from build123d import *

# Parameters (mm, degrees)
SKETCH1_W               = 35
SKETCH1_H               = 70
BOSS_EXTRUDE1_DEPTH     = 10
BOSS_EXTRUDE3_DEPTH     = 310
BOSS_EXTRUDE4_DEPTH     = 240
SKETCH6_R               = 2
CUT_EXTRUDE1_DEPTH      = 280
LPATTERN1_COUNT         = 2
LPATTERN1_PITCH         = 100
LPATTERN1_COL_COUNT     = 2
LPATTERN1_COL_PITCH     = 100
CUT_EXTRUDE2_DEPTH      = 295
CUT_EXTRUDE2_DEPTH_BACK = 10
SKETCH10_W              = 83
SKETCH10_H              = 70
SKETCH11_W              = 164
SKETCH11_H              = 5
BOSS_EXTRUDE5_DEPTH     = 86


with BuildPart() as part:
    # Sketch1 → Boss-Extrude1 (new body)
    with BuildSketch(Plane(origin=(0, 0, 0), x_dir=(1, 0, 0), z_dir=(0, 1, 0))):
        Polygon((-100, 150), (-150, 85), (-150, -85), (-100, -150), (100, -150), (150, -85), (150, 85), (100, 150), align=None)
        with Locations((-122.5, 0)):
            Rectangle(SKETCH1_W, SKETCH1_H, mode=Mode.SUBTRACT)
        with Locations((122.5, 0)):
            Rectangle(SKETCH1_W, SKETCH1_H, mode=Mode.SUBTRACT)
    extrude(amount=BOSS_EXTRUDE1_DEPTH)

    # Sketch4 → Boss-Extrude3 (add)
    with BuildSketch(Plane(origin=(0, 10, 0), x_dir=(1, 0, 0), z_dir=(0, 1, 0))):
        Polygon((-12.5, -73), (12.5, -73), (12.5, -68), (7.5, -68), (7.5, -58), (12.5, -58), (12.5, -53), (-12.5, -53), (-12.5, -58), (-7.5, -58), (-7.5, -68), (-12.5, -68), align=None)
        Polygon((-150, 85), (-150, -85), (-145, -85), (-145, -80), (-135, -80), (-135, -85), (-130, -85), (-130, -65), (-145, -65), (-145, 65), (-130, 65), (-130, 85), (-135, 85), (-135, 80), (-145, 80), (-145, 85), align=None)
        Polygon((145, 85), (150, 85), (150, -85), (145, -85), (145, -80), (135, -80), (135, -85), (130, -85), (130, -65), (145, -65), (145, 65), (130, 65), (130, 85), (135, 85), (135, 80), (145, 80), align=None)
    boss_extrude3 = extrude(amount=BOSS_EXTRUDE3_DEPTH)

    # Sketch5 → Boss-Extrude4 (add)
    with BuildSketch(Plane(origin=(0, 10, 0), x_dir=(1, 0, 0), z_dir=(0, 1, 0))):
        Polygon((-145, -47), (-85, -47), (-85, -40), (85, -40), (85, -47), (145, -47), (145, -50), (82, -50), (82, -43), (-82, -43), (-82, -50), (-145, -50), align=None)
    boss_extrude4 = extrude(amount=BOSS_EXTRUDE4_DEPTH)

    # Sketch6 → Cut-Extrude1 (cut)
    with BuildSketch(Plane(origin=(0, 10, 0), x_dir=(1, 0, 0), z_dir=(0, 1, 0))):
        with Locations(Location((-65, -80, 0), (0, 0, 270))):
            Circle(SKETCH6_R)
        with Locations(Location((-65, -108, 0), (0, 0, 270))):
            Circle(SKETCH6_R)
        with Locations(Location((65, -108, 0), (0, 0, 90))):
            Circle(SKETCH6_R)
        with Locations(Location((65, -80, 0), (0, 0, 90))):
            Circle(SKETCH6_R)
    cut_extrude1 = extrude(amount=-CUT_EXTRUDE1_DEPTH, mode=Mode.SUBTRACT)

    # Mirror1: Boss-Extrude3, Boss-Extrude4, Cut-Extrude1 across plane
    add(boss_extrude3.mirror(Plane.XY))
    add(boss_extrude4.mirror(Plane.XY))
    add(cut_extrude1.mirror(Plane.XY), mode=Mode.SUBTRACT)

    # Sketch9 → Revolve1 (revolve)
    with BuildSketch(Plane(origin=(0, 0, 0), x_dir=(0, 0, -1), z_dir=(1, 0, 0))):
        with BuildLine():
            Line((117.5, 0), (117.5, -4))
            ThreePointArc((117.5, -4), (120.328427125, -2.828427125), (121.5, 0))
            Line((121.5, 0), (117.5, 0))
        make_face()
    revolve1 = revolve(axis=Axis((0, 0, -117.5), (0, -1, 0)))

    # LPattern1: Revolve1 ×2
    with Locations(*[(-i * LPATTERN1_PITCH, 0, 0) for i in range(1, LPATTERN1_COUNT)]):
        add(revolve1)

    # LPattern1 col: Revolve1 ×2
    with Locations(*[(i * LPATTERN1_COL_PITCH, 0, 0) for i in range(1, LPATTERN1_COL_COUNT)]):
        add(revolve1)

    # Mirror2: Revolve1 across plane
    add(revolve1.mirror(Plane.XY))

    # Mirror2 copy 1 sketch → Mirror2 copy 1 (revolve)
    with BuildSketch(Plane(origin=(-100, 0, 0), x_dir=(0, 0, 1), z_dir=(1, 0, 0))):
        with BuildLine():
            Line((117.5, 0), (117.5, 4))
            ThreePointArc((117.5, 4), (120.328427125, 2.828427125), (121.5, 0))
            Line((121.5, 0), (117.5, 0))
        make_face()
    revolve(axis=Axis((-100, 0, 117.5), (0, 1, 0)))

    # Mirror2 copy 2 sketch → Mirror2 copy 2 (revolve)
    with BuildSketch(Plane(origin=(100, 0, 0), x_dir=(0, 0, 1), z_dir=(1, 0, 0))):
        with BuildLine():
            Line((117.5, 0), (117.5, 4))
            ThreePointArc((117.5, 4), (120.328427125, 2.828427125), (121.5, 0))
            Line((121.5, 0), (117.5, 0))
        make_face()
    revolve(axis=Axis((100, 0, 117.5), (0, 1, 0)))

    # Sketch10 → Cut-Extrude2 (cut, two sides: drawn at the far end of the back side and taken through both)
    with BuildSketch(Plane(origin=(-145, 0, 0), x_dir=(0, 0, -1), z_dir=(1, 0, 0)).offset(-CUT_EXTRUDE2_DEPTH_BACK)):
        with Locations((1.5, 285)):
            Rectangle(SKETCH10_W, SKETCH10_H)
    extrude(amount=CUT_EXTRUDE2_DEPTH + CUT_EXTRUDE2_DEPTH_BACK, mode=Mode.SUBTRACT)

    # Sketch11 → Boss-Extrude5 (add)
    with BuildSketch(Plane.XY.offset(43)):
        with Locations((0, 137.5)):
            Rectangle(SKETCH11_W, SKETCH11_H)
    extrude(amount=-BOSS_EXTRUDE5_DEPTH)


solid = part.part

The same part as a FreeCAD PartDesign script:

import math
import FreeCAD as App
import Part
import Sketcher

V = App.Vector

doc = App.newDocument("Part")
body = doc.addObject("PartDesign::Body", "Body")

sketch1 = body.newObject("Sketcher::SketchObject", "Sketch")
sketch1.AttachmentSupport = (doc.getObject("XZ_Plane"), [""])
sketch1.MapMode = "FlatFace"
sketch1.addGeometry(Part.LineSegment(V(-100, -150, 0), V(-150, -85, 0)), False)
sketch1.addGeometry(Part.LineSegment(V(-150, -85, 0), V(-150, 85, 0)), False)
sketch1.addGeometry(Part.LineSegment(V(-150, 85, 0), V(-100, 150, 0)), False)
sketch1.addGeometry(Part.LineSegment(V(-100, 150, 0), V(100, 150, 0)), False)
sketch1.addGeometry(Part.LineSegment(V(100, 150, 0), V(150, 85, 0)), False)
sketch1.addGeometry(Part.LineSegment(V(150, 85, 0), V(150, -85, 0)), False)
sketch1.addGeometry(Part.LineSegment(V(150, -85, 0), V(100, -150, 0)), False)
sketch1.addGeometry(Part.LineSegment(V(100, -150, 0), V(-100, -150, 0)), False)
sketch1.addGeometry(Part.LineSegment(V(-105, 35, 0), V(-140, 35, 0)), False)
sketch1.addGeometry(Part.LineSegment(V(-140, 35, 0), V(-140, -35, 0)), False)
sketch1.addGeometry(Part.LineSegment(V(-140, -35, 0), V(-105, -35, 0)), False)
sketch1.addGeometry(Part.LineSegment(V(-105, -35, 0), V(-105, 35, 0)), False)
sketch1.addGeometry(Part.LineSegment(V(140, 35, 0), V(105, 35, 0)), False)
sketch1.addGeometry(Part.LineSegment(V(105, 35, 0), V(105, -35, 0)), False)
sketch1.addGeometry(Part.LineSegment(V(105, -35, 0), V(140, -35, 0)), False)
sketch1.addGeometry(Part.LineSegment(V(140, -35, 0), V(140, 35, 0)), False)
sketch1.addConstraint(Sketcher.Constraint("Coincident", 0, 2, 1, 1))
sketch1.addConstraint(Sketcher.Constraint("Coincident", 1, 2, 2, 1))
sketch1.addConstraint(Sketcher.Constraint("Coincident", 2, 2, 3, 1))
sketch1.addConstraint(Sketcher.Constraint("Coincident", 3, 2, 4, 1))
sketch1.addConstraint(Sketcher.Constraint("Coincident", 4, 2, 5, 1))
sketch1.addConstraint(Sketcher.Constraint("Coincident", 5, 2, 6, 1))
sketch1.addConstraint(Sketcher.Constraint("Coincident", 6, 2, 7, 1))
sketch1.addConstraint(Sketcher.Constraint("Coincident", 7, 2, 0, 1))
sketch1.addConstraint(Sketcher.Constraint("Coincident", 8, 2, 9, 1))
sketch1.addConstraint(Sketcher.Constraint("Coincident", 9, 2, 10, 1))
sketch1.addConstraint(Sketcher.Constraint("Coincident", 10, 2, 11, 1))
sketch1.addConstraint(Sketcher.Constraint("Coincident", 11, 2, 8, 1))
sketch1.addConstraint(Sketcher.Constraint("Coincident", 12, 2, 13, 1))
sketch1.addConstraint(Sketcher.Constraint("Coincident", 13, 2, 14, 1))
sketch1.addConstraint(Sketcher.Constraint("Coincident", 14, 2, 15, 1))
sketch1.addConstraint(Sketcher.Constraint("Coincident", 15, 2, 12, 1))
sketch1.addConstraint(Sketcher.Constraint("Vertical", 1))
sketch1.addConstraint(Sketcher.Constraint("Horizontal", 3))
sketch1.addConstraint(Sketcher.Constraint("Vertical", 5))
sketch1.addConstraint(Sketcher.Constraint("Horizontal", 7))
sketch1.addConstraint(Sketcher.Constraint("Horizontal", 8))
sketch1.addConstraint(Sketcher.Constraint("Vertical", 9))
sketch1.addConstraint(Sketcher.Constraint("Horizontal", 10))
sketch1.addConstraint(Sketcher.Constraint("Vertical", 11))
sketch1.addConstraint(Sketcher.Constraint("Horizontal", 12))
sketch1.addConstraint(Sketcher.Constraint("Vertical", 13))
sketch1.addConstraint(Sketcher.Constraint("Horizontal", 14))
sketch1.addConstraint(Sketcher.Constraint("Vertical", 15))
sketch1.addConstraint(Sketcher.Constraint("Symmetric", 0, 2, 4, 2, -1, 1))
sketch1.addConstraint(Sketcher.Constraint("Symmetric", 2, 2, 6, 2, -1, 1))
sketch1.addConstraint(Sketcher.Constraint("Symmetric", 10, 2, 12, 2, -1, 1))
sketch1.addConstraint(Sketcher.Constraint("Symmetric", 8, 2, 14, 2, -1, 1))
sketch1.addConstraint(Sketcher.Constraint("Parallel", 0, 4))
sketch1.addConstraint(Sketcher.Constraint("Parallel", 2, 6))
sketch1.addConstraint(Sketcher.Constraint("Horizontal", 1, 2, 4, 2))
sketch1.addConstraint(Sketcher.Constraint("Horizontal", 11, 2, 12, 2))
sketch1.addConstraint(Sketcher.Constraint("Vertical", 3, 2, 6, 2))
sketch1.addConstraint(Sketcher.Constraint("DistanceX", 3, 1, 3, 2, 200.0))
sketch1.addConstraint(Sketcher.Constraint("DistanceX", 8, 2, 8, 1, 35.0))
sketch1.addConstraint(Sketcher.Constraint("DistanceY", 1, 1, 1, 2, 170.0))
sketch1.addConstraint(Sketcher.Constraint("DistanceY", 9, 2, 9, 1, 70.0))
sketch1.addConstraint(Sketcher.Constraint("DistanceX", 0, 2, -1, 1, 150.0))
sketch1.addConstraint(Sketcher.Constraint("DistanceY", -1, 1, 2, 2, 150.0))
sketch1.addConstraint(Sketcher.Constraint("DistanceX", 8, 2, -1, 1, 140.0))
pad1 = body.newObject("PartDesign::Pad", "Pad")
pad1.Profile = sketch1
pad1.Length = 10
pad1.Reversed = True

sketch2 = body.newObject("Sketcher::SketchObject", "Sketch001")
sketch2.AttachmentSupport = (doc.getObject("XZ_Plane"), [""])
sketch2.MapMode = "FlatFace"
sketch2.AttachmentOffset = App.Placement(V(0, 0, -10), App.Rotation())
sketch2.addGeometry(Part.LineSegment(V(-12, 73, 0), V(12, 73, 0)), False)
sketch2.addGeometry(Part.LineSegment(V(12, 73, 0), V(12, 68, 0)), False)
sketch2.addGeometry(Part.LineSegment(V(12, 68, 0), V(8, 68, 0)), False)
sketch2.addGeometry(Part.LineSegment(V(8, 68, 0), V(8, 58, 0)), False)
sketch2.addGeometry(Part.LineSegment(V(8, 58, 0), V(12, 58, 0)), False)
sketch2.addGeometry(Part.LineSegment(V(12, 58, 0), V(12, 53, 0)), False)
sketch2.addGeometry(Part.LineSegment(V(12, 53, 0), V(-12, 53, 0)), False)
sketch2.addGeometry(Part.LineSegment(V(-12, 53, 0), V(-12, 58, 0)), False)
sketch2.addGeometry(Part.LineSegment(V(-12, 58, 0), V(-8, 58, 0)), False)
sketch2.addGeometry(Part.LineSegment(V(-8, 58, 0), V(-8, 68, 0)), False)
sketch2.addGeometry(Part.LineSegment(V(-8, 68, 0), V(-12, 68, 0)), False)
sketch2.addGeometry(Part.LineSegment(V(-12, 68, 0), V(-12, 73, 0)), False)
sketch2.addGeometry(Part.LineSegment(V(-150, -85, 0), V(-150, 85, 0)), False)
sketch2.addGeometry(Part.LineSegment(V(-150, 85, 0), V(-145, 85, 0)), False)
sketch2.addGeometry(Part.LineSegment(V(-145, 85, 0), V(-145, 80, 0)), False)
sketch2.addGeometry(Part.LineSegment(V(-145, 80, 0), V(-135, 80, 0)), False)
sketch2.addGeometry(Part.LineSegment(V(-135, 80, 0), V(-135, 85, 0)), False)
sketch2.addGeometry(Part.LineSegment(V(-135, 85, 0), V(-130, 85, 0)), False)
sketch2.addGeometry(Part.LineSegment(V(-130, 85, 0), V(-130, 65, 0)), False)
sketch2.addGeometry(Part.LineSegment(V(-130, 65, 0), V(-145, 65, 0)), False)
sketch2.addGeometry(Part.LineSegment(V(-145, 65, 0), V(-145, -65, 0)), False)
sketch2.addGeometry(Part.LineSegment(V(-145, -65, 0), V(-130, -65, 0)), False)
sketch2.addGeometry(Part.LineSegment(V(-130, -65, 0), V(-130, -85, 0)), False)
sketch2.addGeometry(Part.LineSegment(V(-130, -85, 0), V(-135, -85, 0)), False)
sketch2.addGeometry(Part.LineSegment(V(-135, -85, 0), V(-135, -80, 0)), False)
sketch2.addGeometry(Part.LineSegment(V(-135, -80, 0), V(-145, -80, 0)), False)
sketch2.addGeometry(Part.LineSegment(V(-145, -80, 0), V(-145, -85, 0)), False)
sketch2.addGeometry(Part.LineSegment(V(-145, -85, 0), V(-150, -85, 0)), False)
sketch2.addGeometry(Part.LineSegment(V(150, -85, 0), V(145, -85, 0)), False)
sketch2.addGeometry(Part.LineSegment(V(145, -85, 0), V(145, -80, 0)), False)
sketch2.addGeometry(Part.LineSegment(V(145, -80, 0), V(135, -80, 0)), False)
sketch2.addGeometry(Part.LineSegment(V(135, -80, 0), V(135, -85, 0)), False)
sketch2.addGeometry(Part.LineSegment(V(135, -85, 0), V(130, -85, 0)), False)
sketch2.addGeometry(Part.LineSegment(V(130, -85, 0), V(130, -65, 0)), False)
sketch2.addGeometry(Part.LineSegment(V(130, -65, 0), V(145, -65, 0)), False)
sketch2.addGeometry(Part.LineSegment(V(145, -65, 0), V(145, 65, 0)), False)
sketch2.addGeometry(Part.LineSegment(V(145, 65, 0), V(130, 65, 0)), False)
sketch2.addGeometry(Part.LineSegment(V(130, 65, 0), V(130, 85, 0)), False)
sketch2.addGeometry(Part.LineSegment(V(130, 85, 0), V(135, 85, 0)), False)
sketch2.addGeometry(Part.LineSegment(V(135, 85, 0), V(135, 80, 0)), False)
sketch2.addGeometry(Part.LineSegment(V(135, 80, 0), V(145, 80, 0)), False)
sketch2.addGeometry(Part.LineSegment(V(145, 80, 0), V(145, 85, 0)), False)
sketch2.addGeometry(Part.LineSegment(V(145, 85, 0), V(150, 85, 0)), False)
sketch2.addGeometry(Part.LineSegment(V(150, 85, 0), V(150, -85, 0)), False)
sketch2.addConstraint(Sketcher.Constraint("Coincident", 0, 2, 1, 1))
sketch2.addConstraint(Sketcher.Constraint("Coincident", 1, 2, 2, 1))
sketch2.addConstraint(Sketcher.Constraint("Coincident", 2, 2, 3, 1))
sketch2.addConstraint(Sketcher.Constraint("Coincident", 3, 2, 4, 1))
sketch2.addConstraint(Sketcher.Constraint("Coincident", 4, 2, 5, 1))
sketch2.addConstraint(Sketcher.Constraint("Coincident", 5, 2, 6, 1))
sketch2.addConstraint(Sketcher.Constraint("Coincident", 6, 2, 7, 1))
sketch2.addConstraint(Sketcher.Constraint("Coincident", 7, 2, 8, 1))
sketch2.addConstraint(Sketcher.Constraint("Coincident", 8, 2, 9, 1))
sketch2.addConstraint(Sketcher.Constraint("Coincident", 9, 2, 10, 1))
sketch2.addConstraint(Sketcher.Constraint("Coincident", 10, 2, 11, 1))
sketch2.addConstraint(Sketcher.Constraint("Coincident", 11, 2, 0, 1))
sketch2.addConstraint(Sketcher.Constraint("Coincident", 12, 2, 13, 1))
sketch2.addConstraint(Sketcher.Constraint("Coincident", 13, 2, 14, 1))
sketch2.addConstraint(Sketcher.Constraint("Coincident", 14, 2, 15, 1))
sketch2.addConstraint(Sketcher.Constraint("Coincident", 15, 2, 16, 1))
sketch2.addConstraint(Sketcher.Constraint("Coincident", 16, 2, 17, 1))
sketch2.addConstraint(Sketcher.Constraint("Coincident", 17, 2, 18, 1))
sketch2.addConstraint(Sketcher.Constraint("Coincident", 18, 2, 19, 1))
sketch2.addConstraint(Sketcher.Constraint("Coincident", 19, 2, 20, 1))
sketch2.addConstraint(Sketcher.Constraint("Coincident", 20, 2, 21, 1))
sketch2.addConstraint(Sketcher.Constraint("Coincident", 21, 2, 22, 1))
sketch2.addConstraint(Sketcher.Constraint("Coincident", 22, 2, 23, 1))
sketch2.addConstraint(Sketcher.Constraint("Coincident", 23, 2, 24, 1))
sketch2.addConstraint(Sketcher.Constraint("Coincident", 24, 2, 25, 1))
sketch2.addConstraint(Sketcher.Constraint("Coincident", 25, 2, 26, 1))
sketch2.addConstraint(Sketcher.Constraint("Coincident", 26, 2, 27, 1))
sketch2.addConstraint(Sketcher.Constraint("Coincident", 27, 2, 12, 1))
sketch2.addConstraint(Sketcher.Constraint("Coincident", 28, 2, 29, 1))
sketch2.addConstraint(Sketcher.Constraint("Coincident", 29, 2, 30, 1))
sketch2.addConstraint(Sketcher.Constraint("Coincident", 30, 2, 31, 1))
sketch2.addConstraint(Sketcher.Constraint("Coincident", 31, 2, 32, 1))
sketch2.addConstraint(Sketcher.Constraint("Coincident", 32, 2, 33, 1))
sketch2.addConstraint(Sketcher.Constraint("Coincident", 33, 2, 34, 1))
sketch2.addConstraint(Sketcher.Constraint("Coincident", 34, 2, 35, 1))
sketch2.addConstraint(Sketcher.Constraint("Coincident", 35, 2, 36, 1))
sketch2.addConstraint(Sketcher.Constraint("Coincident", 36, 2, 37, 1))
sketch2.addConstraint(Sketcher.Constraint("Coincident", 37, 2, 38, 1))
sketch2.addConstraint(Sketcher.Constraint("Coincident", 38, 2, 39, 1))
sketch2.addConstraint(Sketcher.Constraint("Coincident", 39, 2, 40, 1))
sketch2.addConstraint(Sketcher.Constraint("Coincident", 40, 2, 41, 1))
sketch2.addConstraint(Sketcher.Constraint("Coincident", 41, 2, 42, 1))
sketch2.addConstraint(Sketcher.Constraint("Coincident", 42, 2, 43, 1))
sketch2.addConstraint(Sketcher.Constraint("Coincident", 43, 2, 28, 1))
sketch2.addConstraint(Sketcher.Constraint("Horizontal", 0))
sketch2.addConstraint(Sketcher.Constraint("Vertical", 1))
sketch2.addConstraint(Sketcher.Constraint("Horizontal", 2))
sketch2.addConstraint(Sketcher.Constraint("Vertical", 3))
sketch2.addConstraint(Sketcher.Constraint("Horizontal", 4))
sketch2.addConstraint(Sketcher.Constraint("Vertical", 5))
sketch2.addConstraint(Sketcher.Constraint("Horizontal", 6))
sketch2.addConstraint(Sketcher.Constraint("Vertical", 7))
sketch2.addConstraint(Sketcher.Constraint("Horizontal", 8))
sketch2.addConstraint(Sketcher.Constraint("Vertical", 9))
sketch2.addConstraint(Sketcher.Constraint("Horizontal", 10))
sketch2.addConstraint(Sketcher.Constraint("Vertical", 11))
sketch2.addConstraint(Sketcher.Constraint("Vertical", 12))
sketch2.addConstraint(Sketcher.Constraint("Horizontal", 13))
sketch2.addConstraint(Sketcher.Constraint("Vertical", 14))
sketch2.addConstraint(Sketcher.Constraint("Horizontal", 15))
sketch2.addConstraint(Sketcher.Constraint("Vertical", 16))
sketch2.addConstraint(Sketcher.Constraint("Horizontal", 17))
sketch2.addConstraint(Sketcher.Constraint("Vertical", 18))
sketch2.addConstraint(Sketcher.Constraint("Horizontal", 19))
sketch2.addConstraint(Sketcher.Constraint("Vertical", 20))
sketch2.addConstraint(Sketcher.Constraint("Horizontal", 21))
sketch2.addConstraint(Sketcher.Constraint("Vertical", 22))
sketch2.addConstraint(Sketcher.Constraint("Horizontal", 23))
sketch2.addConstraint(Sketcher.Constraint("Vertical", 24))
sketch2.addConstraint(Sketcher.Constraint("Horizontal", 25))
sketch2.addConstraint(Sketcher.Constraint("Vertical", 26))
sketch2.addConstraint(Sketcher.Constraint("Horizontal", 27))
sketch2.addConstraint(Sketcher.Constraint("Horizontal", 28))
sketch2.addConstraint(Sketcher.Constraint("Vertical", 29))
sketch2.addConstraint(Sketcher.Constraint("Horizontal", 30))
sketch2.addConstraint(Sketcher.Constraint("Vertical", 31))
sketch2.addConstraint(Sketcher.Constraint("Horizontal", 32))
sketch2.addConstraint(Sketcher.Constraint("Vertical", 33))
sketch2.addConstraint(Sketcher.Constraint("Horizontal", 34))
sketch2.addConstraint(Sketcher.Constraint("Vertical", 35))
sketch2.addConstraint(Sketcher.Constraint("Horizontal", 36))
sketch2.addConstraint(Sketcher.Constraint("Vertical", 37))
sketch2.addConstraint(Sketcher.Constraint("Horizontal", 38))
sketch2.addConstraint(Sketcher.Constraint("Vertical", 39))
sketch2.addConstraint(Sketcher.Constraint("Horizontal", 40))
sketch2.addConstraint(Sketcher.Constraint("Vertical", 41))
sketch2.addConstraint(Sketcher.Constraint("Horizontal", 42))
sketch2.addConstraint(Sketcher.Constraint("Vertical", 43))
sketch2.addConstraint(Sketcher.Constraint("Symmetric", 13, 2, 28, 2, -1, 1))
sketch2.addConstraint(Sketcher.Constraint("Symmetric", 15, 2, 30, 2, -1, 1))
sketch2.addConstraint(Sketcher.Constraint("Symmetric", 17, 2, 32, 2, -1, 1))
sketch2.addConstraint(Sketcher.Constraint("Symmetric", 19, 2, 34, 2, -1, 1))
sketch2.addConstraint(Sketcher.Constraint("Symmetric", 21, 2, 36, 2, -1, 1))
sketch2.addConstraint(Sketcher.Constraint("Symmetric", 23, 2, 38, 2, -1, 1))
sketch2.addConstraint(Sketcher.Constraint("Symmetric", 25, 2, 40, 2, -1, 1))
sketch2.addConstraint(Sketcher.Constraint("Symmetric", 27, 2, 42, 2, -1, 1))
sketch2.addConstraint(Sketcher.Constraint("Symmetric", 4, 2, 7, 2, -2))
sketch2.addConstraint(Sketcher.Constraint("Symmetric", 2, 2, 9, 2, -2))
sketch2.addConstraint(Sketcher.Constraint("Symmetric", 26, 2, 28, 2, -2))
sketch2.addConstraint(Sketcher.Constraint("Symmetric", 24, 2, 30, 2, -2))
sketch2.addConstraint(Sketcher.Constraint("Symmetric", 22, 2, 32, 2, -2))
sketch2.addConstraint(Sketcher.Constraint("Horizontal", 13, 2, 16, 2))
sketch2.addConstraint(Sketcher.Constraint("Horizontal", 21, 2, 33, 2))
sketch2.addConstraint(Sketcher.Constraint("Vertical", 1, 2, 4, 2))
sketch2.addConstraint(Sketcher.Constraint("Vertical", 7, 2, 10, 2))
sketch2.addConstraint(Sketcher.Constraint("Vertical", 14, 2, 19, 2))
sketch2.addConstraint(Sketcher.Constraint("Equal", 10, 13))
sketch2.addConstraint(Sketcher.Constraint("Equal", 13, 17))
sketch2.addConstraint(Sketcher.Constraint("Equal", 42, 1))
sketch2.addConstraint(Sketcher.Constraint("Equal", 40, 3))
sketch2.addConstraint(Sketcher.Constraint("Equal", 1, 5))
sketch2.addConstraint(Sketcher.Constraint("Equal", 11, 14))
sketch2.addConstraint(Sketcher.Constraint("DistanceX", 0, 1, 0, 2, 25.0))
sketch2.addConstraint(Sketcher.Constraint("DistanceX", 2, 2, 2, 1, 5.0))
sketch2.addConstraint(Sketcher.Constraint("DistanceX", 15, 1, 15, 2, 10.0))
sketch2.addConstraint(Sketcher.Constraint("DistanceY", 12, 1, 12, 2, 170.0))
sketch2.addConstraint(Sketcher.Constraint("DistanceY", 18, 2, 18, 1, 20.0))
sketch2.addConstraint(Sketcher.Constraint("DistanceY", -1, 1, 0, 2, 73.0))
sketch2.addConstraint(Sketcher.Constraint("DistanceX", 12, 2, -1, 1, 150.0))
pad2 = body.newObject("PartDesign::Pad", "Pad001")
pad2.Profile = sketch2
pad2.Length = 310
pad2.Reversed = True

sketch3 = body.newObject("Sketcher::SketchObject", "Sketch002")
sketch3.AttachmentSupport = (doc.getObject("XZ_Plane"), [""])
sketch3.MapMode = "FlatFace"
sketch3.AttachmentOffset = App.Placement(V(0, 0, -10), App.Rotation())
sketch3.addGeometry(Part.LineSegment(V(-85, 47, 0), V(-145, 47, 0)), False)
sketch3.addGeometry(Part.LineSegment(V(-145, 47, 0), V(-145, 50, 0)), False)
sketch3.addGeometry(Part.LineSegment(V(-145, 50, 0), V(-82, 50, 0)), False)
sketch3.addGeometry(Part.LineSegment(V(-82, 50, 0), V(-82, 43, 0)), False)
sketch3.addGeometry(Part.LineSegment(V(-82, 43, 0), V(82, 43, 0)), False)
sketch3.addGeometry(Part.LineSegment(V(82, 43, 0), V(82, 50, 0)), False)
sketch3.addGeometry(Part.LineSegment(V(82, 50, 0), V(145, 50, 0)), False)
sketch3.addGeometry(Part.LineSegment(V(145, 50, 0), V(145, 47, 0)), False)
sketch3.addGeometry(Part.LineSegment(V(145, 47, 0), V(85, 47, 0)), False)
sketch3.addGeometry(Part.LineSegment(V(85, 47, 0), V(85, 40, 0)), False)
sketch3.addGeometry(Part.LineSegment(V(85, 40, 0), V(-85, 40, 0)), False)
sketch3.addGeometry(Part.LineSegment(V(-85, 40, 0), V(-85, 47, 0)), False)
sketch3.addConstraint(Sketcher.Constraint("Coincident", 0, 2, 1, 1))
sketch3.addConstraint(Sketcher.Constraint("Coincident", 1, 2, 2, 1))
sketch3.addConstraint(Sketcher.Constraint("Coincident", 2, 2, 3, 1))
sketch3.addConstraint(Sketcher.Constraint("Coincident", 3, 2, 4, 1))
sketch3.addConstraint(Sketcher.Constraint("Coincident", 4, 2, 5, 1))
sketch3.addConstraint(Sketcher.Constraint("Coincident", 5, 2, 6, 1))
sketch3.addConstraint(Sketcher.Constraint("Coincident", 6, 2, 7, 1))
sketch3.addConstraint(Sketcher.Constraint("Coincident", 7, 2, 8, 1))
sketch3.addConstraint(Sketcher.Constraint("Coincident", 8, 2, 9, 1))
sketch3.addConstraint(Sketcher.Constraint("Coincident", 9, 2, 10, 1))
sketch3.addConstraint(Sketcher.Constraint("Coincident", 10, 2, 11, 1))
sketch3.addConstraint(Sketcher.Constraint("Coincident", 11, 2, 0, 1))
sketch3.addConstraint(Sketcher.Constraint("Horizontal", 0))
sketch3.addConstraint(Sketcher.Constraint("Vertical", 1))
sketch3.addConstraint(Sketcher.Constraint("Horizontal", 2))
sketch3.addConstraint(Sketcher.Constraint("Vertical", 3))
sketch3.addConstraint(Sketcher.Constraint("Horizontal", 4))
sketch3.addConstraint(Sketcher.Constraint("Vertical", 5))
sketch3.addConstraint(Sketcher.Constraint("Horizontal", 6))
sketch3.addConstraint(Sketcher.Constraint("Vertical", 7))
sketch3.addConstraint(Sketcher.Constraint("Horizontal", 8))
sketch3.addConstraint(Sketcher.Constraint("Vertical", 9))
sketch3.addConstraint(Sketcher.Constraint("Horizontal", 10))
sketch3.addConstraint(Sketcher.Constraint("Vertical", 11))
sketch3.addConstraint(Sketcher.Constraint("Symmetric", 2, 2, 5, 2, -2))
sketch3.addConstraint(Sketcher.Constraint("Symmetric", 0, 2, 7, 2, -2))
sketch3.addConstraint(Sketcher.Constraint("Equal", 0, 8))
sketch3.addConstraint(Sketcher.Constraint("Equal", 5, 9))
sketch3.addConstraint(Sketcher.Constraint("DistanceX", 0, 2, 0, 1, 60.0))
sketch3.addConstraint(Sketcher.Constraint("DistanceX", 2, 1, 2, 2, 63.0))
sketch3.addConstraint(Sketcher.Constraint("DistanceX", 4, 1, 4, 2, 164.0))
sketch3.addConstraint(Sketcher.Constraint("DistanceY", 1, 1, 1, 2, 3.0))
sketch3.addConstraint(Sketcher.Constraint("DistanceY", 3, 2, 3, 1, 7.0))
sketch3.addConstraint(Sketcher.Constraint("DistanceY", -1, 1, 0, 2, 47.0))
pad3 = body.newObject("PartDesign::Pad", "Pad002")
pad3.Profile = sketch3
pad3.Length = 240
pad3.Reversed = True

sketch4 = body.newObject("Sketcher::SketchObject", "Sketch003")
sketch4.AttachmentSupport = (doc.getObject("XZ_Plane"), [""])
sketch4.MapMode = "FlatFace"
sketch4.AttachmentOffset = App.Placement(V(0, 0, -10), App.Rotation())
sketch4.addGeometry(Part.Circle(V(-65, 80, 0), V(0, 0, 1), 2), False)
sketch4.addGeometry(Part.Circle(V(-65, 108, 0), V(0, 0, 1), 2), False)
sketch4.addGeometry(Part.Circle(V(65, 108, 0), V(0, 0, 1), 2), False)
sketch4.addGeometry(Part.Circle(V(65, 80, 0), V(0, 0, 1), 2), False)
sketch4.addConstraint(Sketcher.Constraint("Equal", 0, 1))
sketch4.addConstraint(Sketcher.Constraint("Equal", 1, 2))
sketch4.addConstraint(Sketcher.Constraint("Equal", 2, 3))
sketch4.addConstraint(Sketcher.Constraint("Symmetric", 1, 3, 2, 3, -2))
sketch4.addConstraint(Sketcher.Constraint("Symmetric", 0, 3, 3, 3, -2))
sketch4.addConstraint(Sketcher.Constraint("Vertical", 0, 3, 1, 3))
sketch4.addConstraint(Sketcher.Constraint("Diameter", 0, 4.0))
sketch4.addConstraint(Sketcher.Constraint("DistanceX", 0, 3, -1, 1, 65.0))
sketch4.addConstraint(Sketcher.Constraint("DistanceY", -1, 1, 0, 3, 80.0))
sketch4.addConstraint(Sketcher.Constraint("DistanceY", -1, 1, 1, 3, 108.0))
pocket1 = body.newObject("PartDesign::Pocket", "Pocket")
pocket1.Profile = sketch4
pocket1.Length = 280
pocket1.Reversed = True
doc.recompute()

mirrored = body.newObject("PartDesign::Mirrored", "Mirrored")
mirrored.Originals = [pad2, pad3, pocket1]
mirrored.MirrorPlane = (doc.getObject("XY_Plane"), [""])
body.Tip = mirrored

sketch5 = body.newObject("Sketcher::SketchObject", "Sketch004")
sketch5.AttachmentSupport = (doc.getObject("YZ_Plane"), [""])
sketch5.MapMode = "FlatFace"
sketch5.addGeometry(Part.LineSegment(V(0, -117.5, 0), V(-4, -117.5, 0)), False)
sketch5.addGeometry(Part.ArcOfCircle(Part.Circle(V(0, -117.5, 0), V(0, 0, 1), 4), math.radians(180), math.radians(270)), False)
sketch5.addGeometry(Part.LineSegment(V(0, -121.5, 0), V(0, -117.5, 0)), False)
sketch5.addGeometry(Part.LineSegment(V(0, -117.5, 0), V(-4, -117.5, 0)), True)
sketch5.addConstraint(Sketcher.Constraint("Coincident", 0, 2, 1, 1))
sketch5.addConstraint(Sketcher.Constraint("Coincident", 1, 2, 2, 1))
sketch5.addConstraint(Sketcher.Constraint("Coincident", 2, 2, 0, 1))
sketch5.addConstraint(Sketcher.Constraint("Horizontal", 0))
sketch5.addConstraint(Sketcher.Constraint("Vertical", 2))
sketch5.addConstraint(Sketcher.Constraint("Horizontal", 3))
sketch5.addConstraint(Sketcher.Constraint("Coincident", 2, 2, 1, 3))
sketch5.addConstraint(Sketcher.Constraint("Coincident", 3, 1, 1, 3))
sketch5.addConstraint(Sketcher.Constraint("PointOnObject", 1, 3, -2))
sketch5.addConstraint(Sketcher.Constraint("Equal", 0, 3))
sketch5.addConstraint(Sketcher.Constraint("Radius", 1, 4.0))
sketch5.addConstraint(Sketcher.Constraint("DistanceY", 1, 3, -1, 1, 117.5))
revolution = body.newObject("PartDesign::Revolution", "Revolution")
revolution.Profile = sketch5
revolution.ReferenceAxis = (sketch5, ["Axis0"])
revolution.Angle = 360
doc.recompute()

linearpattern = body.newObject("PartDesign::LinearPattern", "LinearPattern")
linearpattern.Originals = [revolution]
linearpattern.Direction = (doc.getObject("X_Axis"), [""])
linearpattern.Mode = "offset"
linearpattern.Offset = 100
linearpattern.Occurrences = 2
linearpattern.Reversed = True
body.Tip = linearpattern
doc.recompute()

linearpattern2 = body.newObject("PartDesign::LinearPattern", "LinearPattern001")
linearpattern2.Originals = [revolution]
linearpattern2.Direction = (doc.getObject("X_Axis"), [""])
linearpattern2.Mode = "offset"
linearpattern2.Offset = 100
linearpattern2.Occurrences = 2
body.Tip = linearpattern2
doc.recompute()

mirrored2 = body.newObject("PartDesign::Mirrored", "Mirrored001")
mirrored2.Originals = [revolution]
mirrored2.MirrorPlane = (doc.getObject("XY_Plane"), [""])
body.Tip = mirrored2

sketch6 = body.newObject("Sketcher::SketchObject", "Sketch005")
sketch6.AttachmentSupport = (doc.getObject("YZ_Plane"), [""])
sketch6.MapMode = "FlatFace"
sketch6.AttachmentOffset = App.Placement(V(0, 0, -100), App.Rotation())
sketch6.addGeometry(Part.LineSegment(V(-4, 117.5, 0), V(0, 117.5, 0)), False)
sketch6.addGeometry(Part.LineSegment(V(0, 117.5, 0), V(0, 121.5, 0)), False)
sketch6.addGeometry(Part.ArcOfCircle(Part.Circle(V(0, 117.5, 0), V(0, 0, 1), 4), math.radians(90), math.radians(180)), False)
sketch6.addGeometry(Part.LineSegment(V(-4, 117.5, 0), V(0, 117.5, 0)), True)
sketch6.addConstraint(Sketcher.Constraint("Coincident", 0, 2, 1, 1))
sketch6.addConstraint(Sketcher.Constraint("Coincident", 1, 2, 2, 1))
sketch6.addConstraint(Sketcher.Constraint("Coincident", 2, 2, 0, 1))
sketch6.addConstraint(Sketcher.Constraint("Horizontal", 0))
sketch6.addConstraint(Sketcher.Constraint("Vertical", 1))
sketch6.addConstraint(Sketcher.Constraint("Horizontal", 3))
sketch6.addConstraint(Sketcher.Constraint("Coincident", 0, 2, 2, 3))
sketch6.addConstraint(Sketcher.Constraint("Coincident", 3, 1, 2, 2))
sketch6.addConstraint(Sketcher.Constraint("PointOnObject", 2, 3, -2))
sketch6.addConstraint(Sketcher.Constraint("PointOnObject", 3, 2, -2))
sketch6.addConstraint(Sketcher.Constraint("Radius", 2, 4.0))
sketch6.addConstraint(Sketcher.Constraint("DistanceY", -1, 1, 2, 3, 117.5))
revolution2 = body.newObject("PartDesign::Revolution", "Revolution001")
revolution2.Profile = sketch6
revolution2.ReferenceAxis = (sketch6, ["Axis0"])
revolution2.Angle = 360

sketch7 = body.newObject("Sketcher::SketchObject", "Sketch006")
sketch7.AttachmentSupport = (doc.getObject("YZ_Plane"), [""])
sketch7.MapMode = "FlatFace"
sketch7.AttachmentOffset = App.Placement(V(0, 0, 100), App.Rotation())
sketch7.addGeometry(Part.LineSegment(V(-4, 117.5, 0), V(0, 117.5, 0)), False)
sketch7.addGeometry(Part.LineSegment(V(0, 117.5, 0), V(0, 121.5, 0)), False)
sketch7.addGeometry(Part.ArcOfCircle(Part.Circle(V(0, 117.5, 0), V(0, 0, 1), 4), math.radians(90), math.radians(180)), False)
sketch7.addGeometry(Part.LineSegment(V(-4, 117.5, 0), V(0, 117.5, 0)), True)
sketch7.addConstraint(Sketcher.Constraint("Coincident", 0, 2, 1, 1))
sketch7.addConstraint(Sketcher.Constraint("Coincident", 1, 2, 2, 1))
sketch7.addConstraint(Sketcher.Constraint("Coincident", 2, 2, 0, 1))
sketch7.addConstraint(Sketcher.Constraint("Horizontal", 0))
sketch7.addConstraint(Sketcher.Constraint("Vertical", 1))
sketch7.addConstraint(Sketcher.Constraint("Horizontal", 3))
sketch7.addConstraint(Sketcher.Constraint("Coincident", 0, 2, 2, 3))
sketch7.addConstraint(Sketcher.Constraint("Coincident", 3, 1, 2, 2))
sketch7.addConstraint(Sketcher.Constraint("PointOnObject", 2, 3, -2))
sketch7.addConstraint(Sketcher.Constraint("PointOnObject", 3, 2, -2))
sketch7.addConstraint(Sketcher.Constraint("Radius", 2, 4.0))
sketch7.addConstraint(Sketcher.Constraint("DistanceY", -1, 1, 2, 3, 117.5))
revolution3 = body.newObject("PartDesign::Revolution", "Revolution002")
revolution3.Profile = sketch7
revolution3.ReferenceAxis = (sketch7, ["Axis0"])
revolution3.Angle = 360

sketch8 = body.newObject("Sketcher::SketchObject", "Sketch007")
sketch8.AttachmentSupport = (doc.getObject("YZ_Plane"), [""])
sketch8.MapMode = "FlatFace"
sketch8.AttachmentOffset = App.Placement(V(0, 0, -145), App.Rotation())
sketch8.addGeometry(Part.LineSegment(V(320, 40, 0), V(250, 40, 0)), False)
sketch8.addGeometry(Part.LineSegment(V(250, 40, 0), V(250, -43, 0)), False)
sketch8.addGeometry(Part.LineSegment(V(250, -43, 0), V(320, -43, 0)), False)
sketch8.addGeometry(Part.LineSegment(V(320, -43, 0), V(320, 40, 0)), False)
sketch8.addConstraint(Sketcher.Constraint("Coincident", 0, 2, 1, 1))
sketch8.addConstraint(Sketcher.Constraint("Coincident", 1, 2, 2, 1))
sketch8.addConstraint(Sketcher.Constraint("Coincident", 2, 2, 3, 1))
sketch8.addConstraint(Sketcher.Constraint("Coincident", 3, 2, 0, 1))
sketch8.addConstraint(Sketcher.Constraint("Horizontal", 0))
sketch8.addConstraint(Sketcher.Constraint("Vertical", 1))
sketch8.addConstraint(Sketcher.Constraint("Horizontal", 2))
sketch8.addConstraint(Sketcher.Constraint("Vertical", 3))
sketch8.addConstraint(Sketcher.Constraint("DistanceX", 0, 2, 0, 1, 70.0))
sketch8.addConstraint(Sketcher.Constraint("DistanceY", 1, 2, 1, 1, 83.0))
sketch8.addConstraint(Sketcher.Constraint("DistanceX", -1, 1, 0, 2, 250.0))
sketch8.addConstraint(Sketcher.Constraint("DistanceY", -1, 1, 0, 2, 40.0))
pocket2 = body.newObject("PartDesign::Pocket", "Pocket001")
pocket2.Profile = sketch8
pocket2.Type = "ThroughAll"
pocket2.Midplane = True

sketch9 = body.newObject("Sketcher::SketchObject", "Sketch008")
sketch9.AttachmentSupport = (doc.getObject("XY_Plane"), [""])
sketch9.MapMode = "FlatFace"
sketch9.AttachmentOffset = App.Placement(V(0, 0, 43), App.Rotation())
sketch9.addGeometry(Part.LineSegment(V(-82, 140, 0), V(-82, 135, 0)), False)
sketch9.addGeometry(Part.LineSegment(V(-82, 135, 0), V(82, 135, 0)), False)
sketch9.addGeometry(Part.LineSegment(V(82, 135, 0), V(82, 140, 0)), False)
sketch9.addGeometry(Part.LineSegment(V(82, 140, 0), V(-82, 140, 0)), False)
sketch9.addConstraint(Sketcher.Constraint("Coincident", 0, 2, 1, 1))
sketch9.addConstraint(Sketcher.Constraint("Coincident", 1, 2, 2, 1))
sketch9.addConstraint(Sketcher.Constraint("Coincident", 2, 2, 3, 1))
sketch9.addConstraint(Sketcher.Constraint("Coincident", 3, 2, 0, 1))
sketch9.addConstraint(Sketcher.Constraint("Vertical", 0))
sketch9.addConstraint(Sketcher.Constraint("Horizontal", 1))
sketch9.addConstraint(Sketcher.Constraint("Vertical", 2))
sketch9.addConstraint(Sketcher.Constraint("Horizontal", 3))
sketch9.addConstraint(Sketcher.Constraint("DistanceX", 1, 1, 1, 2, 164.0))
sketch9.addConstraint(Sketcher.Constraint("DistanceY", 0, 2, 0, 1, 5.0))
sketch9.addConstraint(Sketcher.Constraint("DistanceX", 0, 2, -1, 1, 82.0))
sketch9.addConstraint(Sketcher.Constraint("DistanceY", -1, 1, 0, 2, 135.0))
pad4 = body.newObject("PartDesign::Pad", "Pad003")
pad4.Profile = sketch9
pad4.Length = 86
pad4.Reversed = True

doc.recompute()
